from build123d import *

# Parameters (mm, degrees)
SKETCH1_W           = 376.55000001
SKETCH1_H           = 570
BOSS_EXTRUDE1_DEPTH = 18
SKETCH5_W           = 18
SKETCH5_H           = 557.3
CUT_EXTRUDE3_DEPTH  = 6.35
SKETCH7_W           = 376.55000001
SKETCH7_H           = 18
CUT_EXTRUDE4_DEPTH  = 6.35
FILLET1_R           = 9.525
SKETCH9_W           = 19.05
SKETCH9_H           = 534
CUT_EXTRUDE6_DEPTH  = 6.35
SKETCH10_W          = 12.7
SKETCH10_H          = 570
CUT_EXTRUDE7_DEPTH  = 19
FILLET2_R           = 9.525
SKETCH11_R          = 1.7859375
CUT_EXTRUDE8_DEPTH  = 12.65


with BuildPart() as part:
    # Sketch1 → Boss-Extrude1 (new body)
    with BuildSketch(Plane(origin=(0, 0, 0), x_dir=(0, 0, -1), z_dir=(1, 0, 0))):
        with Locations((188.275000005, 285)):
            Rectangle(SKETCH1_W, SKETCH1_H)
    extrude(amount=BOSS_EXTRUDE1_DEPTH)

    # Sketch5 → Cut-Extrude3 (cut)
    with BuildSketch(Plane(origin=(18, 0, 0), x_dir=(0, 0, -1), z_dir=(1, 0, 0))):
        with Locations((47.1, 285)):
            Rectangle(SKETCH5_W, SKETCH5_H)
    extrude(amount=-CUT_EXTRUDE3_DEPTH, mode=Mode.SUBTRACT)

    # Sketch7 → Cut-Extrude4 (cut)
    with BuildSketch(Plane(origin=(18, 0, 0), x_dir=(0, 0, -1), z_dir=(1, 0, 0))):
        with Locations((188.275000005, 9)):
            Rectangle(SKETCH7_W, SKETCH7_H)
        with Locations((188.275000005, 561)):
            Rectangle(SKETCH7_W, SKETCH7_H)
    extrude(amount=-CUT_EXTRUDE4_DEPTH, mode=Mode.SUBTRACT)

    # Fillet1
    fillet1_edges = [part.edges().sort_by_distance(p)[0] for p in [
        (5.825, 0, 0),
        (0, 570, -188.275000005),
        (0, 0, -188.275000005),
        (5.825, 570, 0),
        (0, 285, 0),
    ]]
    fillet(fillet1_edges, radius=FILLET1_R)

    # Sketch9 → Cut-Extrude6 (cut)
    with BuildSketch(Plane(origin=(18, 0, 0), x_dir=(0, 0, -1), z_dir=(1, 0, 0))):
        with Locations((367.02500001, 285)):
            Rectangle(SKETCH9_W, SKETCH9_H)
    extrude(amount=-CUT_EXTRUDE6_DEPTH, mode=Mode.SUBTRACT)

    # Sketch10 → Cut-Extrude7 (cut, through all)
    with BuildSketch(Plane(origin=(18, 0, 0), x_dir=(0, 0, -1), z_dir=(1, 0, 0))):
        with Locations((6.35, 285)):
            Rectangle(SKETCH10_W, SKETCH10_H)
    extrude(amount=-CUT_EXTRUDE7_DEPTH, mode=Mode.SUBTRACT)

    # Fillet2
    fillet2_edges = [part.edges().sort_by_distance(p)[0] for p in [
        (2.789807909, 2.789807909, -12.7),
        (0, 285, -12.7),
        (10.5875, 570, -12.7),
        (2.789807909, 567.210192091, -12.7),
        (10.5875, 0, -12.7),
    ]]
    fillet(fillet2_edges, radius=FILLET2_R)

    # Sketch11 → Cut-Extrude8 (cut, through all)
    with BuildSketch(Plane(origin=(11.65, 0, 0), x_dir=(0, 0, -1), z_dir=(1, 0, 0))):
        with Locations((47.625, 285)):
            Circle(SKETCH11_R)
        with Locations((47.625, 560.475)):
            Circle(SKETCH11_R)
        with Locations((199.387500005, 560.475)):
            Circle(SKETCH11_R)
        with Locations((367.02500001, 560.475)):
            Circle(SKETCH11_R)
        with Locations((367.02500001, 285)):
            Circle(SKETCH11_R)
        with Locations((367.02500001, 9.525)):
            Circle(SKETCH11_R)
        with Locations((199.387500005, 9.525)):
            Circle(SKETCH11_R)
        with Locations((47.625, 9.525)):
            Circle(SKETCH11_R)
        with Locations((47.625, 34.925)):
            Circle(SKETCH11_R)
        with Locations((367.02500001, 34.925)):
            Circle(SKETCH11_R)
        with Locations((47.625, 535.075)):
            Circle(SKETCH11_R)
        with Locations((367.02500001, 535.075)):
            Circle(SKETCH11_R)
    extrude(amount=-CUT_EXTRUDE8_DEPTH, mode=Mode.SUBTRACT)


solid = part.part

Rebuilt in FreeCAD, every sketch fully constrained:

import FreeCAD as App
import Part
import Sketcher

V = App.Vector


def edges_at(feature, points):
    """Names of the edges that pass closest to the given points."""
    edges = feature.Shape.Edges
    near = lambda p: min(range(len(edges)), key=lambda i: edges[i].distToShape(Part.Vertex(*p))[0])
    return sorted({f"Edge{near(p) + 1}" for p in points})

doc = App.newDocument("Part")
body = doc.addObject("PartDesign::Body", "Body")

# Sketch on YZ plane
sketch1 = body.newObject("Sketcher::SketchObject", "Sketch")
sketch1.AttachmentSupport = (doc.getObject("YZ_Plane"), [""])
sketch1.MapMode = "FlatFace"
sketch1.addGeometry([
    Part.LineSegment(V(570, 0, 0), V(0, 0, 0)),
    Part.LineSegment(V(0, 0, 0), V(0, -377, 0)),
    Part.LineSegment(V(0, -377, 0), V(570, -377, 0)),
    Part.LineSegment(V(570, -377, 0), V(570, 0, 0)),
], False)
sketch1.addConstraint([
    Sketcher.Constraint("Coincident", 0, 2, 1, 1),
    Sketcher.Constraint("Coincident", 1, 2, 2, 1),
    Sketcher.Constraint("Coincident", 2, 2, 3, 1),
    Sketcher.Constraint("Coincident", 3, 2, 0, 1),
    Sketcher.Constraint("Horizontal", 0),
    Sketcher.Constraint("Vertical", 1),
    Sketcher.Constraint("Horizontal", 2),
    Sketcher.Constraint("Vertical", 3),
    Sketcher.Constraint("Coincident", 0, 2, -1, 1),
    Sketcher.Constraint("DistanceX", 0, 2, 0, 1, 570.0),
    Sketcher.Constraint("DistanceY", 1, 2, 1, 1, 376.55),
])
pad1 = body.newObject("PartDesign::Pad", "Pad")
pad1.Profile = sketch1
pad1.Length = 18

# Sketch on YZ plane
sketch2 = body.newObject("Sketcher::SketchObject", "Sketch001")
sketch2.AttachmentSupport = (doc.getObject("YZ_Plane"), [""])
sketch2.MapMode = "FlatFace"
sketch2.AttachmentOffset = App.Placement(V(0, 0, 18), App.Rotation())
sketch2.addGeometry([
    Part.LineSegment(V(564, -38, 0), V(6, -38, 0)),
    Part.LineSegment(V(6, -38, 0), V(6, -56, 0)),
    Part.LineSegment(V(6, -56, 0), V(564, -56, 0)),
    Part.LineSegment(V(564, -56, 0), V(564, -38, 0)),
], False)
sketch2.addConstraint([
    Sketcher.Constraint("Coincident", 0, 2, 1, 1),
    Sketcher.Constraint("Coincident", 1, 2, 2, 1),
    Sketcher.Constraint("Coincident", 2, 2, 3, 1),
    Sketcher.Constraint("Coincident", 3, 2, 0, 1),
    Sketcher.Constraint("Horizontal", 0),
    Sketcher.Constraint("Vertical", 1),
    Sketcher.Constraint("Horizontal", 2),
    Sketcher.Constraint("Vertical", 3),
    Sketcher.Constraint("DistanceY", 1, 2, 1, 1, 18.0),
    Sketcher.Constraint("DistanceX", 0, 2, 0, 1, 557.3),
    Sketcher.Constraint("DistanceY", 0, 2, -1, 1, 38.1),
    Sketcher.Constraint("DistanceX", -1, 1, 0, 2, 6.35),
])
pocket1 = body.newObject("PartDesign::Pocket", "Pocket")
pocket1.Profile = sketch2
pocket1.Length = 6.35

# Sketch on YZ plane
sketch3 = body.newObject("Sketcher::SketchObject", "Sketch002")
sketch3.AttachmentSupport = (doc.getObject("YZ_Plane"), [""])
sketch3.MapMode = "FlatFace"
sketch3.AttachmentOffset = App.Placement(V(0, 0, 18), App.Rotation())
sketch3.addGeometry([
    Part.LineSegment(V(18, 0, 0), V(0, 0, 0)),  # 0
    Part.LineSegment(V(0, 0, 0), V(0, -377, 0)),  # 1
    Part.LineSegment(V(0, -377, 0), V(18, -377, 0)),  # 2
    Part.LineSegment(V(18, -377, 0), V(18, 0, 0)),  # 3
    Part.LineSegment(V(570, 0, 0), V(552, 0, 0)),  # 4
    Part.LineSegment(V(552, 0, 0), V(552, -377, 0)),  # 5
    Part.LineSegment(V(552, -377, 0), V(570, -377, 0)),  # 6
    Part.LineSegment(V(570, -377, 0), V(570, 0, 0)),  # 7
], False)
sketch3.addConstraint([
    Sketcher.Constraint("Coincident", 0, 2, 1, 1),
    Sketcher.Constraint("Coincident", 1, 2, 2, 1),
    Sketcher.Constraint("Coincident", 2, 2, 3, 1),
    Sketcher.Constraint("Coincident", 3, 2, 0, 1),
    Sketcher.Constraint("Coincident", 4, 2, 5, 1),
    Sketcher.Constraint("Coincident", 5, 2, 6, 1),
    Sketcher.Constraint("Coincident", 6, 2, 7, 1),
    Sketcher.Constraint("Coincident", 7, 2, 4, 1),
    Sketcher.Constraint("Horizontal", 0),
    Sketcher.Constraint("Vertical", 1),
    Sketcher.Constraint("Horizontal", 2),
    Sketcher.Constraint("Vertical", 3),
    Sketcher.Constraint("Horizontal", 4),
    Sketcher.Constraint("Vertical", 5),
    Sketcher.Constraint("Horizontal", 6),
    Sketcher.Constraint("Vertical", 7),
    Sketcher.Constraint("Coincident", 0, 2, -1, 1),
    Sketcher.Constraint("PointOnObject", 4, 2, -1),
    Sketcher.Constraint("Horizontal", 2, 2, 5, 2),
    Sketcher.Constraint("Equal", 2, 4),
    Sketcher.Constraint("DistanceX", 0, 2, 0, 1, 18.0),
    Sketcher.Constraint("DistanceX", -1, 1, 4, 2, 552.0),
    Sketcher.Constraint("DistanceY", 1, 2, 1, 1, 376.55),
])
pocket2 = body.newObject("PartDesign::Pocket", "Pocket001")
pocket2.Profile = sketch3
pocket2.Length = 6.35
doc.recompute()

fillet = body.newObject("PartDesign::Fillet", "Fillet")
fillet.Base = (pocket2, edges_at(pocket2, [
    (5.825, 0, 0),
    (0, 570, -188.275),
    (0, 0, -188.275),
    (5.825, 570, 0),
    (0, 285, 0),
]))
fillet.Radius = 9.525

# Sketch on YZ plane
sketch4 = body.newObject("Sketcher::SketchObject", "Sketch003")
sketch4.AttachmentSupport = (doc.getObject("YZ_Plane"), [""])
sketch4.MapMode = "FlatFace"
sketch4.AttachmentOffset = App.Placement(V(0, 0, 18), App.Rotation())
sketch4.addGeometry([
    Part.LineSegment(V(552, -358, 0), V(18, -358, 0)),
    Part.LineSegment(V(18, -358, 0), V(18, -377, 0)),
    Part.LineSegment(V(18, -377, 0), V(552, -377, 0)),
    Part.LineSegment(V(552, -377, 0), V(552, -358, 0)),
], False)
sketch4.addConstraint([
    Sketcher.Constraint("Coincident", 0, 2, 1, 1),
    Sketcher.Constraint("Coincident", 1, 2, 2, 1),
    Sketcher.Constraint("Coincident", 2, 2, 3, 1),
    Sketcher.Constraint("Coincident", 3, 2, 0, 1),
    Sketcher.Constraint("Horizontal", 0),
    Sketcher.Constraint("Vertical", 1),
    Sketcher.Constraint("Horizontal", 2),
    Sketcher.Constraint("Vertical", 3),
    Sketcher.Constraint("DistanceX", 0, 2, 0, 1, 534.0),
    Sketcher.Constraint("DistanceX", -1, 1, 0, 2, 18.0),
    Sketcher.Constraint("DistanceY", 1, 2, 1, 1, 19.05),
    Sketcher.Constraint("DistanceY", 0, 2, -1, 1, 357.5),
])
pocket3 = body.newObject("PartDesign::Pocket", "Pocket002")
pocket3.Profile = sketch4
pocket3.Length = 6.35

# Sketch on YZ plane
sketch5 = body.newObject("Sketcher::SketchObject", "Sketch004")
sketch5.AttachmentSupport = (doc.getObject("YZ_Plane"), [""])
sketch5.MapMode = "FlatFace"
sketch5.AttachmentOffset = App.Placement(V(0, 0, 18), App.Rotation())
sketch5.addGeometry([
    Part.LineSegment(V(570, 0, 0), V(0, 0, 0)),
    Part.LineSegment(V(0, 0, 0), V(0, -13, 0)),
    Part.LineSegment(V(0, -13, 0), V(570, -13, 0)),
    Part.LineSegment(V(570, -13, 0), V(570, 0, 0)),
], False)
sketch5.addConstraint([
    Sketcher.Constraint("Coincident", 0, 2, 1, 1),
    Sketcher.Constraint("Coincident", 1, 2, 2, 1),
    Sketcher.Constraint("Coincident", 2, 2, 3, 1),
    Sketcher.Constraint("Coincident", 3, 2, 0, 1),
    Sketcher.Constraint("Horizontal", 0),
    Sketcher.Constraint("Vertical", 1),
    Sketcher.Constraint("Horizontal", 2),
    Sketcher.Constraint("Vertical", 3),
    Sketcher.Constraint("Coincident", 0, 2, -1, 1),
    Sketcher.Constraint("DistanceX", 0, 2, 0, 1, 570.0),
    Sketcher.Constraint("DistanceY", 1, 2, 1, 1, 12.7),
])
pocket4 = body.newObject("PartDesign::Pocket", "Pocket003")
pocket4.Profile = sketch5
pocket4.Type = "ThroughAll"
doc.recompute()

fillet2 = body.newObject("PartDesign::Fillet", "Fillet001")
fillet2.Base = (pocket4, edges_at(pocket4, [
    (2.79, 2.79, -12.7),
    (0, 285, -12.7),
    (10.588, 570, -12.7),
    (2.79, 567.21, -12.7),
    (10.588, 0, -12.7),
]))
fillet2.Radius = 9.525

# Sketch on YZ plane
sketch6 = body.newObject("Sketcher::SketchObject", "Sketch005")
sketch6.AttachmentSupport = (doc.getObject("YZ_Plane"), [""])
sketch6.MapMode = "FlatFace"
sketch6.AttachmentOffset = App.Placement(V(0, 0, 11.65), App.Rotation())
sketch6.addGeometry([
    Part.Circle(V(285, -47.6, 0), V(0, 0, 1), 1.8),  # 0
    Part.Circle(V(560.5, -47.6, 0), V(0, 0, 1), 1.8),  # 1
    Part.Circle(V(560.5, -199.4, 0), V(0, 0, 1), 1.8),  # 2
    Part.Circle(V(560.5, -367, 0), V(0, 0, 1), 1.8),  # 3
    Part.Circle(V(285, -367, 0), V(0, 0, 1), 1.8),  # 4
    Part.Circle(V(9.5, -367, 0), V(0, 0, 1), 1.8),  # 5
    Part.Circle(V(9.5, -199.4, 0), V(0, 0, 1), 1.8),  # 6
    Part.Circle(V(9.5, -47.6, 0), V(0, 0, 1), 1.8),  # 7
    Part.Circle(V(34.9, -47.6, 0), V(0, 0, 1), 1.8),  # 8
    Part.Circle(V(34.9, -367, 0), V(0, 0, 1), 1.8),  # 9
    Part.Circle(V(535.1, -47.6, 0), V(0, 0, 1), 1.8),  # 10
    Part.Circle(V(535.1, -367, 0), V(0, 0, 1), 1.8),  # 11
], False)
sketch6.addConstraint([
    Sketcher.Constraint("Equal", 0, 1),
    Sketcher.Constraint("Equal", 1, 2),
    Sketcher.Constraint("Equal", 2, 3),
    Sketcher.Constraint("Equal", 3, 4),
    Sketcher.Constraint("Equal", 4, 5),
    Sketcher.Constraint("Equal", 5, 6),
    Sketcher.Constraint("Equal", 6, 7),
    Sketcher.Constraint("Equal", 7, 8),
    Sketcher.Constraint("Equal", 8, 9),
    Sketcher.Constraint("Equal", 9, 10),
    Sketcher.Constraint("Equal", 10, 11),
    Sketcher.Constraint("Horizontal", 0, 3, 1, 3),
    Sketcher.Constraint("Horizontal", 3, 3, 4, 3),
    Sketcher.Constraint("Horizontal", 4, 3, 5, 3),
    Sketcher.Constraint("Horizontal", 2, 3, 6, 3),
    Sketcher.Constraint("Horizontal", 1, 3, 7, 3),
    Sketcher.Constraint("Horizontal", 7, 3, 8, 3),
    Sketcher.Constraint("Horizontal", 5, 3, 9, 3),
    Sketcher.Constraint("Horizontal", 8, 3, 10, 3),
    Sketcher.Constraint("Horizontal", 9, 3, 11, 3),
    Sketcher.Constraint("Vertical", 1, 3, 2, 3),
    Sketcher.Constraint("Vertical", 2, 3, 3, 3),
    Sketcher.Constraint("Vertical", 0, 3, 4, 3),
    Sketcher.Constraint("Vertical", 5, 3, 6, 3),
    Sketcher.Constraint("Vertical", 6, 3, 7, 3),
    Sketcher.Constraint("Vertical", 8, 3, 9, 3),
    Sketcher.Constraint("Vertical", 10, 3, 11, 3),
    Sketcher.Constraint("DistanceX", -1, 1, 0, 3, 285.0),
    Sketcher.Constraint("DistanceY", 3, 3, 1, 3, 319.4),
    Sketcher.Constraint("DistanceX", 7, 3, 8, 3, 25.4),
    Sketcher.Constraint("DistanceX", 10, 3, 1, 3, 25.4),
    Sketcher.Constraint("DistanceX", 5, 3, 3, 3, 550.95),
    Sketcher.Constraint("Diameter", 0, 3.571875),
    Sketcher.Constraint("DistanceY", 0, 3, -1, 1, 47.625),
    Sketcher.Constraint("DistanceX", -1, 1, 1, 3, 560.475),
    Sketcher.Constraint("DistanceY", 2, 3, -1, 1, 199.3875),
])
pocket5 = body.newObject("PartDesign::Pocket", "Pocket004")
pocket5.Profile = sketch6
pocket5.Type = "ThroughAll"

doc.recompute()
